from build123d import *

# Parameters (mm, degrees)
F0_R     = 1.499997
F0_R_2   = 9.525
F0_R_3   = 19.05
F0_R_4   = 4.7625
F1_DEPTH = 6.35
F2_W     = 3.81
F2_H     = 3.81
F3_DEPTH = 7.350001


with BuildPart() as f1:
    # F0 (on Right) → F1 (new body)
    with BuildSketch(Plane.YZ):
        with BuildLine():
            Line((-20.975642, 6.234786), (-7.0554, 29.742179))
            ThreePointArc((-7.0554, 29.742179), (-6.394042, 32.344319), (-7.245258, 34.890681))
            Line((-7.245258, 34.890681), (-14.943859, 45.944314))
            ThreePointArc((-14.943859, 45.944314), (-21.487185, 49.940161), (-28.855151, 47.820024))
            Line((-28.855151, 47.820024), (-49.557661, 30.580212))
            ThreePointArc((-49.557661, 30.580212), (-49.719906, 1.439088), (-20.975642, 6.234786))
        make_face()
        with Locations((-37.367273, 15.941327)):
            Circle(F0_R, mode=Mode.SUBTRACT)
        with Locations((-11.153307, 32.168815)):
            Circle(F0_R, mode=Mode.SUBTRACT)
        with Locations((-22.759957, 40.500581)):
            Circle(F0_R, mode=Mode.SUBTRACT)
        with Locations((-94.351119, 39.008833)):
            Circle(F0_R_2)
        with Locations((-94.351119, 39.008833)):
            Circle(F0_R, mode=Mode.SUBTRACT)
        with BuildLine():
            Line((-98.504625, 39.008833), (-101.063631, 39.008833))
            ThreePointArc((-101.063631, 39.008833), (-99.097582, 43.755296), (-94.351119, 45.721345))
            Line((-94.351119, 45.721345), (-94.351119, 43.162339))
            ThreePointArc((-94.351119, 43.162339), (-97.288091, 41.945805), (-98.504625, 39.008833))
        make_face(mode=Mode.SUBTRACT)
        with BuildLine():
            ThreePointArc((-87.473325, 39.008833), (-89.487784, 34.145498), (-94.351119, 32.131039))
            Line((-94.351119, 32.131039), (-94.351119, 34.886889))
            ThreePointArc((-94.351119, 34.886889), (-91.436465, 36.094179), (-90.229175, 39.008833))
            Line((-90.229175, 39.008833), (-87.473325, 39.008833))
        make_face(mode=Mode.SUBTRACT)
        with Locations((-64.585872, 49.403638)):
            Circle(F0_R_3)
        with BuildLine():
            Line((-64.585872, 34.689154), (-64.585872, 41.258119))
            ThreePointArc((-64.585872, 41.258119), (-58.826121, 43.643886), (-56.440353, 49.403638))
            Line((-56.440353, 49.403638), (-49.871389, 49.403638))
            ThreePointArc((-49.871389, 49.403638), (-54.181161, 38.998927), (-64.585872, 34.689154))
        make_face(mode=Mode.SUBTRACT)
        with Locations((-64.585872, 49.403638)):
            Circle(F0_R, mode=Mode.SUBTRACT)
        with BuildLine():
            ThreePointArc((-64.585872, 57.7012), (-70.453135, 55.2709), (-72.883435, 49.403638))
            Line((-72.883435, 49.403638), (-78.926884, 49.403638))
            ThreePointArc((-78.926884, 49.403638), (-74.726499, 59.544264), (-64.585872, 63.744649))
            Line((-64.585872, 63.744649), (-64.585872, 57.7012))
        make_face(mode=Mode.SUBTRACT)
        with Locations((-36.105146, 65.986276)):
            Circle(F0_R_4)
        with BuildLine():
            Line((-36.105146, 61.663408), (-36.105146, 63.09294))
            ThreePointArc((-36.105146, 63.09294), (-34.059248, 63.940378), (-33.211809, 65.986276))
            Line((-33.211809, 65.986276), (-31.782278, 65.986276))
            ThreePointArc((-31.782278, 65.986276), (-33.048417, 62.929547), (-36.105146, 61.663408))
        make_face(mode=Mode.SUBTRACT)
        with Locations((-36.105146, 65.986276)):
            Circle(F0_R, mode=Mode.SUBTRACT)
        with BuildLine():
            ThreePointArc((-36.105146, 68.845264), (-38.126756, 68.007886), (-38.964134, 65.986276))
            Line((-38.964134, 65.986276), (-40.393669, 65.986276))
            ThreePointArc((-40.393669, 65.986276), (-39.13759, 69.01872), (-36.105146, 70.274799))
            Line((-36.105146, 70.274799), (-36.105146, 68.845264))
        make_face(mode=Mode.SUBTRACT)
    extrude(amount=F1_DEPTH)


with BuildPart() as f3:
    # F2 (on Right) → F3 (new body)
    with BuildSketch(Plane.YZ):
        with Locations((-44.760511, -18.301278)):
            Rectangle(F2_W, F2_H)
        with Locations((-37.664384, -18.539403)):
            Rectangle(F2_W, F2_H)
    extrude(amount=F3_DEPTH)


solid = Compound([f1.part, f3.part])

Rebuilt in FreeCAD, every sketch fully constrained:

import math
import FreeCAD as App
import Part
import Sketcher

V = App.Vector
Q = App.Units.Quantity

doc = App.newDocument("Part")
params = doc.addObject("Spreadsheet::Sheet", "Params")
for row, (alias, value) in enumerate([
    ("sketch1_diameter", "1.5 in"),
    ("sketch1_diameter2", "0.75 in"),
    ("sketch1_diameter3", "0.375 in"),
    ("pad1_length", "0.25 in"),
    ("sketch2_width", "0.15 in"),
    ("pad2_length", "7.350001 mm"),
], start=1):
    params.set(f"A{row}", alias)
    params.set(f"B{row}", "=" + value)
    params.setAlias(f"B{row}", alias)

body = doc.addObject("PartDesign::Body", "Body")
body.AllowCompound = True

# Sketch on YZ plane
sketch1 = doc.addObject("Sketcher::SketchObject", "Sketch")
body.addObject(sketch1)
sketch1.AttachmentSupport = (doc.YZ_Plane, [""])
sketch1.MapMode = "FlatFace"
sketch1.addGeometry(Part.LineSegment(V(-21, 6.2, 0), V(-7.1, 29.7, 0)), False)
sketch1.addGeometry(Part.ArcOfCircle(Part.Circle(V(-11.2, 32.2, 0), V(0, 0, 1), 4.8), math.radians(-31), math.radians(35)), False)
sketch1.addGeometry(Part.LineSegment(V(-7.2, 34.9, 0), V(-14.9, 45.9, 0)), False)
sketch1.addGeometry(Part.ArcOfCircle(Part.Circle(V(-22.8, 40.5, 0), V(0, 0, 1), 9.5), math.radians(35), math.radians(130)), False)
sketch1.addGeometry(Part.LineSegment(V(-28.9, 47.8, 0), V(-49.6, 30.6, 0)), False)
sketch1.addGeometry(Part.ArcOfCircle(Part.Circle(V(-37.4, 15.9, 0), V(0, 0, 1), 19.1), math.radians(130), math.radians(329)), False)
sketch1.addGeometry(Part.Circle(V(-37.4, 15.9, 0), V(0, 0, 1), 1.5), False)
sketch1.addGeometry(Part.Circle(V(-11.2, 32.2, 0), V(0, 0, 1), 1.5), False)
sketch1.addGeometry(Part.Circle(V(-22.8, 40.5, 0), V(0, 0, 1), 1.5), False)
sketch1.addGeometry(Part.Circle(V(-94.4, 39, 0), V(0, 0, 1), 9.5), False)
sketch1.addGeometry(Part.LineSegment(V(-90.2, 39, 0), V(-87.5, 39, 0)), False)
sketch1.addGeometry(Part.ArcOfCircle(Part.Circle(V(-94.4, 39, 0), V(0, 0, 1), 6.9), math.radians(-90), math.radians(0)), False)
sketch1.addGeometry(Part.LineSegment(V(-94.4, 32.1, 0), V(-94.4, 34.9, 0)), False)
sketch1.addGeometry(Part.ArcOfCircle(Part.Circle(V(-94.4, 39, 0), V(0, 0, 1), 4.1), math.radians(-90), math.radians(0)), False)
sketch1.addGeometry(Part.Circle(V(-94.4, 39, 0), V(0, 0, 1), 1.5), False)
sketch1.addGeometry(Part.ArcOfCircle(Part.Circle(V(-94.4, 39, 0), V(0, 0, 1), 4.2), math.radians(90), math.radians(180)), False)
sketch1.addGeometry(Part.LineSegment(V(-98.5, 39, 0), V(-101.1, 39, 0)), False)
sketch1.addGeometry(Part.ArcOfCircle(Part.Circle(V(-94.4, 39, 0), V(0, 0, 1), 6.7), math.radians(90), math.radians(180)), False)
sketch1.addGeometry(Part.LineSegment(V(-94.4, 45.7, 0), V(-94.4, 43.2, 0)), False)
sketch1.addGeometry(Part.Circle(V(-64.6, 49.4, 0), V(0, 0, 1), 19.1), False)
sketch1.addGeometry(Part.ArcOfCircle(Part.Circle(V(-64.6, 49.4, 0), V(0, 0, 1), 14.7), math.radians(-90), math.radians(0)), False)
sketch1.addGeometry(Part.LineSegment(V(-64.6, 34.7, 0), V(-64.6, 41.3, 0)), False)
sketch1.addGeometry(Part.ArcOfCircle(Part.Circle(V(-64.6, 49.4, 0), V(0, 0, 1), 8.1), math.radians(-90), math.radians(0)), False)
sketch1.addGeometry(Part.LineSegment(V(-56.4, 49.4, 0), V(-49.9, 49.4, 0)), False)
sketch1.addGeometry(Part.Circle(V(-64.6, 49.4, 0), V(0, 0, 1), 1.5), False)
sketch1.addGeometry(Part.LineSegment(V(-64.6, 63.7, 0), V(-64.6, 57.7, 0)), False)
sketch1.addGeometry(Part.ArcOfCircle(Part.Circle(V(-64.6, 49.4, 0), V(0, 0, 1), 8.3), math.radians(90), math.radians(180)), False)
sketch1.addGeometry(Part.LineSegment(V(-72.9, 49.4, 0), V(-78.9, 49.4, 0)), False)
sketch1.addGeometry(Part.ArcOfCircle(Part.Circle(V(-64.6, 49.4, 0), V(0, 0, 1), 14.3), math.radians(90), math.radians(180)), False)
sketch1.addGeometry(Part.Circle(V(-36.1, 66, 0), V(0, 0, 1), 4.8), False)
sketch1.addGeometry(Part.ArcOfCircle(Part.Circle(V(-36.1, 66, 0), V(0, 0, 1), 4.3), math.radians(-90), math.radians(0)), False)
sketch1.addGeometry(Part.LineSegment(V(-36.1, 61.7, 0), V(-36.1, 63.1, 0)), False)
sketch1.addGeometry(Part.ArcOfCircle(Part.Circle(V(-36.1, 66, 0), V(0, 0, 1), 2.9), math.radians(-90), math.radians(0)), False)
sketch1.addGeometry(Part.LineSegment(V(-33.2, 66, 0), V(-31.8, 66, 0)), False)
sketch1.addGeometry(Part.Circle(V(-36.1, 66, 0), V(0, 0, 1), 1.5), False)
sketch1.addGeometry(Part.LineSegment(V(-36.1, 70.3, 0), V(-36.1, 68.8, 0)), False)
sketch1.addGeometry(Part.ArcOfCircle(Part.Circle(V(-36.1, 66, 0), V(0, 0, 1), 2.9), math.radians(90), math.radians(180)), False)
sketch1.addGeometry(Part.LineSegment(V(-39, 66, 0), V(-40.4, 66, 0)), False)
sketch1.addGeometry(Part.ArcOfCircle(Part.Circle(V(-36.1, 66, 0), V(0, 0, 1), 4.3), math.radians(90), math.radians(180)), False)
sketch1.addConstraint(Sketcher.Constraint("Tangent", 0, 2, 1, 1))
sketch1.addConstraint(Sketcher.Constraint("Tangent", 1, 2, 2, 1))
sketch1.addConstraint(Sketcher.Constraint("Tangent", 2, 2, 3, 1))
sketch1.addConstraint(Sketcher.Constraint("Tangent", 3, 2, 4, 1))
sketch1.addConstraint(Sketcher.Constraint("Tangent", 4, 2, 5, 1))
sketch1.addConstraint(Sketcher.Constraint("Tangent", 5, 2, 0, 1))
sketch1.addConstraint(Sketcher.Constraint("Coincident", 10, 2, 11, 2))
sketch1.addConstraint(Sketcher.Constraint("Coincident", 11, 1, 12, 1))
sketch1.addConstraint(Sketcher.Constraint("Coincident", 12, 2, 13, 1))
sketch1.addConstraint(Sketcher.Constraint("Coincident", 13, 2, 10, 1))
sketch1.addConstraint(Sketcher.Constraint("Coincident", 15, 2, 16, 1))
sketch1.addConstraint(Sketcher.Constraint("Coincident", 16, 2, 17, 2))
sketch1.addConstraint(Sketcher.Constraint("Coincident", 17, 1, 18, 1))
sketch1.addConstraint(Sketcher.Constraint("Coincident", 18, 2, 15, 1))
sketch1.addConstraint(Sketcher.Constraint("Coincident", 20, 1, 21, 1))
sketch1.addConstraint(Sketcher.Constraint("Coincident", 21, 2, 22, 1))
sketch1.addConstraint(Sketcher.Constraint("Coincident", 22, 2, 23, 1))
sketch1.addConstraint(Sketcher.Constraint("Coincident", 23, 2, 20, 2))
sketch1.addConstraint(Sketcher.Constraint("Coincident", 25, 2, 26, 1))
sketch1.addConstraint(Sketcher.Constraint("Coincident", 26, 2, 27, 1))
sketch1.addConstraint(Sketcher.Constraint("Coincident", 27, 2, 28, 2))
sketch1.addConstraint(Sketcher.Constraint("Coincident", 28, 1, 25, 1))
sketch1.addConstraint(Sketcher.Constraint("Coincident", 30, 1, 31, 1))
sketch1.addConstraint(Sketcher.Constraint("Coincident", 31, 2, 32, 1))
sketch1.addConstraint(Sketcher.Constraint("Coincident", 32, 2, 33, 1))
sketch1.addConstraint(Sketcher.Constraint("Coincident", 33, 2, 30, 2))
sketch1.addConstraint(Sketcher.Constraint("Coincident", 35, 2, 36, 1))
sketch1.addConstraint(Sketcher.Constraint("Coincident", 36, 2, 37, 1))
sketch1.addConstraint(Sketcher.Constraint("Coincident", 37, 2, 38, 2))
sketch1.addConstraint(Sketcher.Constraint("Coincident", 38, 1, 35, 1))
sketch1.addConstraint(Sketcher.Constraint("Horizontal", 10))
sketch1.addConstraint(Sketcher.Constraint("Vertical", 12))
sketch1.addConstraint(Sketcher.Constraint("Horizontal", 16))
sketch1.addConstraint(Sketcher.Constraint("Vertical", 18))
sketch1.addConstraint(Sketcher.Constraint("Vertical", 21))
sketch1.addConstraint(Sketcher.Constraint("Horizontal", 23))
sketch1.addConstraint(Sketcher.Constraint("Vertical", 25))
sketch1.addConstraint(Sketcher.Constraint("Horizontal", 27))
sketch1.addConstraint(Sketcher.Constraint("Vertical", 31))
sketch1.addConstraint(Sketcher.Constraint("Horizontal", 33))
sketch1.addConstraint(Sketcher.Constraint("Vertical", 35))
sketch1.addConstraint(Sketcher.Constraint("Horizontal", 37))
sketch1.addConstraint(Sketcher.Constraint("Coincident", 6, 3, 5, 3))
sketch1.addConstraint(Sketcher.Constraint("Coincident", 7, 3, 1, 3))
sketch1.addConstraint(Sketcher.Constraint("Coincident", 8, 3, 3, 3))
sketch1.addConstraint(Sketcher.Constraint("Coincident", 11, 3, 9, 3))
sketch1.addConstraint(Sketcher.Constraint("Coincident", 13, 3, 9, 3))
sketch1.addConstraint(Sketcher.Constraint("Coincident", 14, 3, 9, 3))
sketch1.addConstraint(Sketcher.Constraint("Coincident", 15, 3, 9, 3))
sketch1.addConstraint(Sketcher.Constraint("Coincident", 17, 3, 9, 3))
sketch1.addConstraint(Sketcher.Constraint("Coincident", 20, 3, 19, 3))
sketch1.addConstraint(Sketcher.Constraint("Coincident", 22, 3, 19, 3))
sketch1.addConstraint(Sketcher.Constraint("Coincident", 24, 3, 19, 3))
sketch1.addConstraint(Sketcher.Constraint("Coincident", 26, 3, 19, 3))
sketch1.addConstraint(Sketcher.Constraint("Coincident", 28, 3, 19, 3))
sketch1.addConstraint(Sketcher.Constraint("Coincident", 30, 3, 29, 3))
sketch1.addConstraint(Sketcher.Constraint("Coincident", 32, 3, 29, 3))
sketch1.addConstraint(Sketcher.Constraint("Coincident", 34, 3, 29, 3))
sketch1.addConstraint(Sketcher.Constraint("Coincident", 36, 3, 29, 3))
sketch1.addConstraint(Sketcher.Constraint("Coincident", 38, 3, 29, 3))
sketch1.addConstraint(Sketcher.Constraint("Equal", 6, 7))
sketch1.addConstraint(Sketcher.Constraint("Equal", 7, 8))
sketch1.addConstraint(Sketcher.Constraint("Equal", 3, 9))
sketch1.addConstraint(Sketcher.Constraint("Equal", 8, 14))
sketch1.addConstraint(Sketcher.Constraint("Equal", 5, 19))
sketch1.addConstraint(Sketcher.Constraint("Equal", 14, 24))
sketch1.addConstraint(Sketcher.Constraint("Equal", 1, 29))
sketch1.addConstraint(Sketcher.Constraint("Equal", 24, 34))
sketch1.addConstraint(Sketcher.Constraint("Horizontal", 17, 3, 10, 2))
sketch1.addConstraint(Sketcher.Constraint("Horizontal", 13, 2, 15, 2))
sketch1.addConstraint(Sketcher.Constraint("Horizontal", 28, 3, 22, 2))
sketch1.addConstraint(Sketcher.Constraint("Horizontal", 23, 2, 26, 2))
sketch1.addConstraint(Sketcher.Constraint("Horizontal", 38, 3, 32, 2))
sketch1.addConstraint(Sketcher.Constraint("Horizontal", 33, 2, 36, 2))
sketch1.addConstraint(Sketcher.Constraint("Vertical", 17, 3, 11, 1))
sketch1.addConstraint(Sketcher.Constraint("Vertical", 12, 2, 17, 1))
sketch1.addConstraint(Sketcher.Constraint("Vertical", 28, 3, 20, 1))
sketch1.addConstraint(Sketcher.Constraint("Vertical", 21, 2, 25, 2))
sketch1.addConstraint(Sketcher.Constraint("Vertical", 38, 3, 30, 1))
sketch1.addConstraint(Sketcher.Constraint("Vertical", 31, 2, 35, 2))
sketch1.addConstraint(Sketcher.Constraint("Diameter", 19, Q("1.5 in")))
sketch1.addConstraint(Sketcher.Constraint("Diameter", 9, Q("0.75 in")))
sketch1.addConstraint(Sketcher.Constraint("Diameter", 29, Q("0.375 in")))
sketch1.addConstraint(Sketcher.Constraint("Radius", 17, 6.712511))
sketch1.addConstraint(Sketcher.Constraint("Radius", 22, 8.14552))
sketch1.addConstraint(Sketcher.Constraint("Radius", 28, 14.341011))
sketch1.addConstraint(Sketcher.Constraint("Radius", 30, 4.322869))
sketch1.addConstraint(Sketcher.Constraint("Radius", 38, 4.288522))
sketch1.addConstraint(Sketcher.Constraint("Diameter", 6, 2.999994))
sketch1.addConstraint(Sketcher.Constraint("Radius", 11, 6.877793))
sketch1.addConstraint(Sketcher.Constraint("Radius", 13, 4.121946))
sketch1.addConstraint(Sketcher.Constraint("Radius", 15, 4.153507))
sketch1.addConstraint(Sketcher.Constraint("Radius", 20, 14.714484))
sketch1.addConstraint(Sketcher.Constraint("Radius", 26, 8.297563))
sketch1.addConstraint(Sketcher.Constraint("Radius", 32, 2.893336))
sketch1.addConstraint(Sketcher.Constraint("Radius", 36, 2.858987))
sketch1.addConstraint(Sketcher.Constraint("DistanceX", 0, 2, -1, 1, 7.0554))
sketch1.addConstraint(Sketcher.Constraint("DistanceY", -1, 1, 25, 2, 57.7012))
sketch1.addConstraint(Sketcher.Constraint("DistanceY", -1, 1, 38, 1, 70.274799))
sketch1.addConstraint(Sketcher.Constraint("DistanceY", 0, 2, 8, 3, 10.758402))
sketch1.addConstraint(Sketcher.Constraint("DistanceY", 0, 2, 1, 2, 5.148502))
sketch1.addConstraint(Sketcher.Constraint("DistanceX", 8, 3, 1, 2, 15.514699))
sketch1.addConstraint(Sketcher.Constraint("Distance", 4, 26.940769))
sketch1.addConstraint(Sketcher.Constraint("DistanceY", -1, 1, 3, 3, 40.50058))
sketch1.addConstraint(Sketcher.Constraint("DistanceX", 9, 3, -1, 1, 94.351119))
sketch1.addConstraint(Sketcher.Constraint("DistanceX", 19, 3, -1, 1, 64.585872))
sketch1.addConstraint(Sketcher.Constraint("DistanceY", -1, 1, 11, 1, 32.131039))
sketch1.addConstraint(Sketcher.Constraint("DistanceX", 32, 2, -1, 1, 33.211809))
sketch1.setExpression("Constraints[80]", "Params.sketch1_diameter")
sketch1.setExpression("Constraints[81]", "Params.sketch1_diameter2")
sketch1.setExpression("Constraints[82]", "Params.sketch1_diameter3")
pad1 = doc.addObject("PartDesign::Pad", "Pad")
body.addObject(pad1)
pad1.Profile = sketch1
pad1.setExpression("Length", "Params.pad1_length")
body2 = doc.addObject("PartDesign::Body", "Body001")
body2.AllowCompound = True

# Sketch on YZ plane
sketch2 = doc.addObject("Sketcher::SketchObject", "Sketch001")
body2.addObject(sketch2)
sketch2.AttachmentSupport = (doc.getObject("YZ_Plane001"), [""])
sketch2.MapMode = "FlatFace"
sketch2.addGeometry(Part.LineSegment(V(-46.7, -16.4, 0), V(-46.7, -20.2, 0)), False)
sketch2.addGeometry(Part.LineSegment(V(-46.7, -20.2, 0), V(-42.9, -20.2, 0)), False)
sketch2.addGeometry(Part.LineSegment(V(-42.9, -20.2, 0), V(-42.9, -16.4, 0)), False)
sketch2.addGeometry(Part.LineSegment(V(-42.9, -16.4, 0), V(-46.7, -16.4, 0)), False)
sketch2.addGeometry(Part.LineSegment(V(-39.6, -16.6, 0), V(-39.6, -20.4, 0)), False)
sketch2.addGeometry(Part.LineSegment(V(-39.6, -20.4, 0), V(-35.8, -20.4, 0)), False)
sketch2.addGeometry(Part.LineSegment(V(-35.8, -20.4, 0), V(-35.8, -16.6, 0)), False)
sketch2.addGeometry(Part.LineSegment(V(-35.8, -16.6, 0), V(-39.6, -16.6, 0)), False)
sketch2.addConstraint(Sketcher.Constraint("Coincident", 0, 2, 1, 1))
sketch2.addConstraint(Sketcher.Constraint("Coincident", 1, 2, 2, 1))
sketch2.addConstraint(Sketcher.Constraint("Coincident", 2, 2, 3, 1))
sketch2.addConstraint(Sketcher.Constraint("Coincident", 3, 2, 0, 1))
sketch2.addConstraint(Sketcher.Constraint("Coincident", 4, 2, 5, 1))
sketch2.addConstraint(Sketcher.Constraint("Coincident", 5, 2, 6, 1))
sketch2.addConstraint(Sketcher.Constraint("Coincident", 6, 2, 7, 1))
sketch2.addConstraint(Sketcher.Constraint("Coincident", 7, 2, 4, 1))
sketch2.addConstraint(Sketcher.Constraint("Vertical", 0))
sketch2.addConstraint(Sketcher.Constraint("Horizontal", 1))
sketch2.addConstraint(Sketcher.Constraint("Vertical", 2))
sketch2.addConstraint(Sketcher.Constraint("Horizontal", 3))
sketch2.addConstraint(Sketcher.Constraint("Vertical", 4))
sketch2.addConstraint(Sketcher.Constraint("Horizontal", 5))
sketch2.addConstraint(Sketcher.Constraint("Vertical", 6))
sketch2.addConstraint(Sketcher.Constraint("Horizontal", 7))
sketch2.addConstraint(Sketcher.Constraint("Equal", 3, 5))
sketch2.addConstraint(Sketcher.Constraint("Equal", 7, 0))
sketch2.addConstraint(Sketcher.Constraint("Equal", 2, 4))
sketch2.addConstraint(Sketcher.Constraint("DistanceX", 1, 1, 1, 2, Q("0.15 in")))
sketch2.addConstraint(Sketcher.Constraint("DistanceY", 1, 2, 6, 2, Q("0.140625 in")))
sketch2.addConstraint(Sketcher.Constraint("DistanceX", 0, 2, -1, 1, 46.665511))
sketch2.addConstraint(Sketcher.Constraint("DistanceY", 0, 2, -1, 1, 20.206278))
sketch2.addConstraint(Sketcher.Constraint("DistanceX", 4, 2, -1, 1, 39.569384))
sketch2.setExpression("Constraints[19]", "Params.sketch2_width")
pad2 = doc.addObject("PartDesign::Pad", "Pad001")
body2.addObject(pad2)
pad2.Profile = sketch2
pad2.setExpression("Length", "Params.pad2_length")

doc.recompute()
